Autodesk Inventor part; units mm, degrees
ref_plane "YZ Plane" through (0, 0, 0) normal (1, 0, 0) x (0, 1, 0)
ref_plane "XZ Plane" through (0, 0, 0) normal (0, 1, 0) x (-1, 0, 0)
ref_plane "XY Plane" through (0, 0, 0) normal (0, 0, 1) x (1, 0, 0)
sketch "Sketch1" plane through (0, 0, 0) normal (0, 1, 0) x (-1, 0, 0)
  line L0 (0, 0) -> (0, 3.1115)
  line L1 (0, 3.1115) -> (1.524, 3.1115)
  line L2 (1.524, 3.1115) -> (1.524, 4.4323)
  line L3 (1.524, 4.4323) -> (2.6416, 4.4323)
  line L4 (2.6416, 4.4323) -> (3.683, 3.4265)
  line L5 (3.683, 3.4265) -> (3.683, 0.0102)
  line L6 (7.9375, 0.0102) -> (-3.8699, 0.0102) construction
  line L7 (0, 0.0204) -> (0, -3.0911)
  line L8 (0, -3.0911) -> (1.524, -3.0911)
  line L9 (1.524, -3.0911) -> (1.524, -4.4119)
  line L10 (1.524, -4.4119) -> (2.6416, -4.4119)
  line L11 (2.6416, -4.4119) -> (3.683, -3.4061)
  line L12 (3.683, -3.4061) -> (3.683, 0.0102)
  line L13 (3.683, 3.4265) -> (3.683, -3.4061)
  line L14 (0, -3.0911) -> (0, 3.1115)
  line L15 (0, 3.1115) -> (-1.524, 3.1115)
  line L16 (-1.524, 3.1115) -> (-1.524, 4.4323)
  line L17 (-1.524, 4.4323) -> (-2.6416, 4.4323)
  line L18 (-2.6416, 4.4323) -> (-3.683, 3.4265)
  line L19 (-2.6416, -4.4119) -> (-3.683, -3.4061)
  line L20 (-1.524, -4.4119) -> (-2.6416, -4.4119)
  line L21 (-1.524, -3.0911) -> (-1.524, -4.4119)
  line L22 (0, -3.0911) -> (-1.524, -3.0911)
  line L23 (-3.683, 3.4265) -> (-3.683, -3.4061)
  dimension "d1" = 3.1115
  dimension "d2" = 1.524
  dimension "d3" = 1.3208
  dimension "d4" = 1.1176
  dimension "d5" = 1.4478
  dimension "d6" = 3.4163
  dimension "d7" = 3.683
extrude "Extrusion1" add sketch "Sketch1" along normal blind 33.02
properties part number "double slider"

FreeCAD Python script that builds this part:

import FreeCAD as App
import Part
import Sketcher
from FreeCAD import Vector
Q = App.Units.Quantity


def add_polygon(sketch, points):
    """Adds a closed chain of lines whose ends are joined by coincident constraints."""
    first, n = sketch.GeometryCount, len(points)
    for a, b in zip(points, points[1:] + points[:1]):
        sketch.addGeometry(Part.LineSegment(App.Vector(*a, 0), App.Vector(*b, 0)), False)
    for i in range(n):
        sketch.addConstraint(Sketcher.Constraint("Coincident", first + i, 2, first + (i + 1) % n, 1))

doc = App.newDocument("Part")
body = doc.addObject("PartDesign::Body", "Body")

sketch1 = doc.addObject("Sketcher::SketchObject", "Sketch")
body.addObject(sketch1)
sketch1.AttachmentSupport = (doc.XZ_Plane, [""])
sketch1.MapMode = "FlatFace"
add_polygon(sketch1, [(1.5, -3.1), (-1.5, -3.1), (-1.5, -4.4), (-2.6, -4.4), (-3.7, -3.4), (-3.7, 3.4), (-2.6, 4.4), (-1.5, 4.4), (-1.5, 3.1), (1.5, 3.1), (1.5, 4.4), (2.6, 4.4), (3.7, 3.4), (3.7, -3.4), (2.6, -4.4), (1.5, -4.4)])
sketch1.addConstraint([
    Sketcher.Constraint("Horizontal", 0),
    Sketcher.Constraint("Vertical", 1),
    Sketcher.Constraint("Horizontal", 2),
    Sketcher.Constraint("Vertical", 4),
    Sketcher.Constraint("Horizontal", 6),
    Sketcher.Constraint("Vertical", 7),
    Sketcher.Constraint("Horizontal", 8),
    Sketcher.Constraint("Vertical", 9),
    Sketcher.Constraint("Horizontal", 10),
    Sketcher.Constraint("Vertical", 12),
    Sketcher.Constraint("Horizontal", 14),
    Sketcher.Constraint("Vertical", 15),
    Sketcher.Constraint("Symmetric", 6, 2, 9, 2, -2),
    Sketcher.Constraint("Symmetric", 4, 2, 11, 2, -2),
    Sketcher.Constraint("Symmetric", 2, 2, 13, 2, -2),
    Sketcher.Constraint("Parallel", 3, 11),
    Sketcher.Constraint("Parallel", 5, 13),
    Sketcher.Constraint("Horizontal", 3, 2, 12, 2),
    Sketcher.Constraint("Vertical", 2, 2, 5, 2),
    Sketcher.Constraint("Vertical", 1, 2, 6, 2),
    Sketcher.Constraint("Vertical", 9, 2, 14, 2),
    Sketcher.Constraint("Equal", 1, 7),
    Sketcher.Constraint("DistanceX", 2, 2, 2, 1, Q("0.044 in")),
    Sketcher.Constraint("DistanceY", 1, 2, 1, 1, Q("0.052 in")),
    Sketcher.Constraint("DistanceX", 0, 2, -1, 1, Q("0.06 in")),
    Sketcher.Constraint("Distance", 3, Q("0.057 in")),
    Sketcher.Constraint("DistanceX", 3, 2, -1, 1, Q("0.145 in")),
    Sketcher.Constraint("DistanceY", -1, 1, 7, 2, Q("0.1225 in")),
    Sketcher.Constraint("DistanceY", 4, 1, 4, 2, Q("0.269 in")),
])
pad1 = doc.addObject("PartDesign::Pad", "Pad")
body.addObject(pad1)
pad1.Profile = sketch1
pad1.Length = Q("1.3 in")
pad1.Reversed = True

doc.recompute()
